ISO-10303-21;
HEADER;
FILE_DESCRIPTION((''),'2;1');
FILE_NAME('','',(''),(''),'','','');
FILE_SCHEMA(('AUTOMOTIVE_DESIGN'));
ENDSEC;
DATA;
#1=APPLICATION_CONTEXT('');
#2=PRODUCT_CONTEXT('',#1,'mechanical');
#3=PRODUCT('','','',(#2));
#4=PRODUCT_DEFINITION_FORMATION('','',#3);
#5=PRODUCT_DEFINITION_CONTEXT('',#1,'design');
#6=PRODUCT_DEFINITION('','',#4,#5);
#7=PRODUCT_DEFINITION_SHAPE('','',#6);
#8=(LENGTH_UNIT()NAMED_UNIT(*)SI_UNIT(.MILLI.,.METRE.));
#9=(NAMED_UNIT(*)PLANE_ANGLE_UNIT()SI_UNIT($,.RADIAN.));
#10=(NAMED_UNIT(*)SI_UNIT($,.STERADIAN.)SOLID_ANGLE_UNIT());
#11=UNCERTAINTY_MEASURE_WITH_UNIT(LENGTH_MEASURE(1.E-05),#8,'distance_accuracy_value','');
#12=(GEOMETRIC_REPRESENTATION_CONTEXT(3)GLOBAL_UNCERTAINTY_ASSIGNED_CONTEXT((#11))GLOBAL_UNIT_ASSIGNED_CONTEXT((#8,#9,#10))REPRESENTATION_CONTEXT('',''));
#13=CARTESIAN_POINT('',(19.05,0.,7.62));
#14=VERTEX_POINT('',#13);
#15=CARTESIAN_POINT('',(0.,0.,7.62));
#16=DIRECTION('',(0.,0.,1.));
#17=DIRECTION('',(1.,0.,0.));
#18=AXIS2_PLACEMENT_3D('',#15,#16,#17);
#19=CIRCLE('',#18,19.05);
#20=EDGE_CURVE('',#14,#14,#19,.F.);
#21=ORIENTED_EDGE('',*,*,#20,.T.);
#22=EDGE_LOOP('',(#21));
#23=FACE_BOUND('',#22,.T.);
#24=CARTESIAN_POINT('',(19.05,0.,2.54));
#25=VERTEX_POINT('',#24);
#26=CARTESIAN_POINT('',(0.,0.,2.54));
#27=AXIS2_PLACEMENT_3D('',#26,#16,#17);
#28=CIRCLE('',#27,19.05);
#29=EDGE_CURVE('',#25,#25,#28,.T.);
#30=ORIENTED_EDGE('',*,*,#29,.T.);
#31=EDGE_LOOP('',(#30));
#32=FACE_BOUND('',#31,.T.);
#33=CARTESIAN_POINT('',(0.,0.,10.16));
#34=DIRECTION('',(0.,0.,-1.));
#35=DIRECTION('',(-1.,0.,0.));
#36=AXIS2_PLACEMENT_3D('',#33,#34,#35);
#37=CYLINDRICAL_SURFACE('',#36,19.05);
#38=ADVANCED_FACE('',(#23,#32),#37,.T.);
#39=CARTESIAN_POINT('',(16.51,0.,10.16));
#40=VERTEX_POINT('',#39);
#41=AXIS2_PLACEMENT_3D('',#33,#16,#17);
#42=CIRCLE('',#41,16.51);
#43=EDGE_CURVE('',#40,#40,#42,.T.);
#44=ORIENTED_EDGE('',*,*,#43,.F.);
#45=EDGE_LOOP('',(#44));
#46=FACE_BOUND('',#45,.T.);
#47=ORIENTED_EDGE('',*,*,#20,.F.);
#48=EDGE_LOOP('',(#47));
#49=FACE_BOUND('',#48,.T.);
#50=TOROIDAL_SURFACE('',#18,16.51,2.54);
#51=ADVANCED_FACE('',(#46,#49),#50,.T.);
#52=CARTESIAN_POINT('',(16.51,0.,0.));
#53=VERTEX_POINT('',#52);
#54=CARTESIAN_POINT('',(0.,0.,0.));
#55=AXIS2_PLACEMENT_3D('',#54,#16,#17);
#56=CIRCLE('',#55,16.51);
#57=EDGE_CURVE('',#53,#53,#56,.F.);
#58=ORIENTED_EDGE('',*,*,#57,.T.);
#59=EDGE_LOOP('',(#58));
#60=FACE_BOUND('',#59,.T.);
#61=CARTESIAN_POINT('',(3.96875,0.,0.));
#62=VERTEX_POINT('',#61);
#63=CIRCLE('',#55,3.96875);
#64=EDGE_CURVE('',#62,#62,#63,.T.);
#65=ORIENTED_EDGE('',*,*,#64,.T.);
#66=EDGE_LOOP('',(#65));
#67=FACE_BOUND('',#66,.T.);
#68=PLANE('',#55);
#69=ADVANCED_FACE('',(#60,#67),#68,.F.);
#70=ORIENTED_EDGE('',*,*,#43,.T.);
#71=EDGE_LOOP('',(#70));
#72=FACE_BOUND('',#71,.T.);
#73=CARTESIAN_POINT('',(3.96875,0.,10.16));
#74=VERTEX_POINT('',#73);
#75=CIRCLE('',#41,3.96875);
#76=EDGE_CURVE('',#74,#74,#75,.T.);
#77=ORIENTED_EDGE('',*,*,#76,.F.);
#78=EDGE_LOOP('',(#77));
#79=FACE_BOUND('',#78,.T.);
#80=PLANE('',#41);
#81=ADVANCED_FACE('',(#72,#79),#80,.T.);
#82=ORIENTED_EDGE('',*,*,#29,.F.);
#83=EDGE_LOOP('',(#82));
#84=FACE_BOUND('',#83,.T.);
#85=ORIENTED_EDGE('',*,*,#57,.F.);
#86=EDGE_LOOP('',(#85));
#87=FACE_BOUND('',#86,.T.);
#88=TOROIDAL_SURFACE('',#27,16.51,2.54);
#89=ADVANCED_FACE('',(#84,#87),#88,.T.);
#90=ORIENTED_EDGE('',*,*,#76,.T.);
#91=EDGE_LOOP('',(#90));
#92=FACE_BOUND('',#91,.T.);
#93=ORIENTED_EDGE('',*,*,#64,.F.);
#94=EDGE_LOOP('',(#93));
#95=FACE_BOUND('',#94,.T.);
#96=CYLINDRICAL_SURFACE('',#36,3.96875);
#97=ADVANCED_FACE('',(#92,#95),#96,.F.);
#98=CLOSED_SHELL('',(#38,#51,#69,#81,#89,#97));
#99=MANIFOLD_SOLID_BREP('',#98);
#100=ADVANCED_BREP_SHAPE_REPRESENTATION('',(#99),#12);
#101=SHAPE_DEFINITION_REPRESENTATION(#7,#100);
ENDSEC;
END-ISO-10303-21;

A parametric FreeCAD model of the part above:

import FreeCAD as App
import Part
import Sketcher
Q = App.Units.Quantity


def edges_at(feature, points):
    """Names of the edges that pass closest to the given points."""
    edges = feature.Shape.Edges
    near = lambda p: min(range(len(edges)), key=lambda i: edges[i].distToShape(Part.Vertex(*p))[0])
    return sorted({f"Edge{near(p) + 1}" for p in points})

doc = App.newDocument("Part")
params = doc.addObject("Spreadsheet::Sheet", "Params")
for row, (alias, value) in enumerate([
    ("sketch1_diameter", "1.5 in"),
    ("sketch1_diameter2", "0.3125 in"),
    ("pad1_length", "0.4 in"),
    ("fillet_radius", "0.1 in"),
], start=1):
    params.set(f"A{row}", alias)
    params.set(f"B{row}", "=" + value)
    params.setAlias(f"B{row}", alias)

body = doc.addObject("PartDesign::Body", "Body")

# Sketch on XY plane
sketch1 = body.newObject("Sketcher::SketchObject", "Sketch")
sketch1.AttachmentSupport = (doc.getObject("XY_Plane"), [""])
sketch1.MapMode = "FlatFace"
sketch1.addGeometry([
    Part.Circle(App.Vector(0, 0, 0), App.Vector(0, 0, 1), 19.05),
    Part.Circle(App.Vector(0, 0, 0), App.Vector(0, 0, 1), 3.96875),
], False)
sketch1.addConstraint([
    Sketcher.Constraint("Coincident", 0, 3, -1, 1),
    Sketcher.Constraint("Coincident", 1, 3, -1, 1),
    Sketcher.Constraint("Diameter", 0, Q("1.5 in")),
    Sketcher.Constraint("Diameter", 1, Q("0.3125 in")),
])
sketch1.setExpression("Constraints[2]", "Params.sketch1_diameter")
sketch1.setExpression("Constraints[3]", "Params.sketch1_diameter2")
pad1 = body.newObject("PartDesign::Pad", "Pad")
pad1.Profile = sketch1
pad1.setExpression("Length", "Params.pad1_length")
doc.recompute()

fillet = body.newObject("PartDesign::Fillet", "Fillet")
fillet.Base = (pad1, edges_at(pad1, [(-19.05, 0, 0), (-19.05, 0, 10.16)]))
fillet.setExpression("Radius", "Params.fillet_radius")

doc.recompute()
